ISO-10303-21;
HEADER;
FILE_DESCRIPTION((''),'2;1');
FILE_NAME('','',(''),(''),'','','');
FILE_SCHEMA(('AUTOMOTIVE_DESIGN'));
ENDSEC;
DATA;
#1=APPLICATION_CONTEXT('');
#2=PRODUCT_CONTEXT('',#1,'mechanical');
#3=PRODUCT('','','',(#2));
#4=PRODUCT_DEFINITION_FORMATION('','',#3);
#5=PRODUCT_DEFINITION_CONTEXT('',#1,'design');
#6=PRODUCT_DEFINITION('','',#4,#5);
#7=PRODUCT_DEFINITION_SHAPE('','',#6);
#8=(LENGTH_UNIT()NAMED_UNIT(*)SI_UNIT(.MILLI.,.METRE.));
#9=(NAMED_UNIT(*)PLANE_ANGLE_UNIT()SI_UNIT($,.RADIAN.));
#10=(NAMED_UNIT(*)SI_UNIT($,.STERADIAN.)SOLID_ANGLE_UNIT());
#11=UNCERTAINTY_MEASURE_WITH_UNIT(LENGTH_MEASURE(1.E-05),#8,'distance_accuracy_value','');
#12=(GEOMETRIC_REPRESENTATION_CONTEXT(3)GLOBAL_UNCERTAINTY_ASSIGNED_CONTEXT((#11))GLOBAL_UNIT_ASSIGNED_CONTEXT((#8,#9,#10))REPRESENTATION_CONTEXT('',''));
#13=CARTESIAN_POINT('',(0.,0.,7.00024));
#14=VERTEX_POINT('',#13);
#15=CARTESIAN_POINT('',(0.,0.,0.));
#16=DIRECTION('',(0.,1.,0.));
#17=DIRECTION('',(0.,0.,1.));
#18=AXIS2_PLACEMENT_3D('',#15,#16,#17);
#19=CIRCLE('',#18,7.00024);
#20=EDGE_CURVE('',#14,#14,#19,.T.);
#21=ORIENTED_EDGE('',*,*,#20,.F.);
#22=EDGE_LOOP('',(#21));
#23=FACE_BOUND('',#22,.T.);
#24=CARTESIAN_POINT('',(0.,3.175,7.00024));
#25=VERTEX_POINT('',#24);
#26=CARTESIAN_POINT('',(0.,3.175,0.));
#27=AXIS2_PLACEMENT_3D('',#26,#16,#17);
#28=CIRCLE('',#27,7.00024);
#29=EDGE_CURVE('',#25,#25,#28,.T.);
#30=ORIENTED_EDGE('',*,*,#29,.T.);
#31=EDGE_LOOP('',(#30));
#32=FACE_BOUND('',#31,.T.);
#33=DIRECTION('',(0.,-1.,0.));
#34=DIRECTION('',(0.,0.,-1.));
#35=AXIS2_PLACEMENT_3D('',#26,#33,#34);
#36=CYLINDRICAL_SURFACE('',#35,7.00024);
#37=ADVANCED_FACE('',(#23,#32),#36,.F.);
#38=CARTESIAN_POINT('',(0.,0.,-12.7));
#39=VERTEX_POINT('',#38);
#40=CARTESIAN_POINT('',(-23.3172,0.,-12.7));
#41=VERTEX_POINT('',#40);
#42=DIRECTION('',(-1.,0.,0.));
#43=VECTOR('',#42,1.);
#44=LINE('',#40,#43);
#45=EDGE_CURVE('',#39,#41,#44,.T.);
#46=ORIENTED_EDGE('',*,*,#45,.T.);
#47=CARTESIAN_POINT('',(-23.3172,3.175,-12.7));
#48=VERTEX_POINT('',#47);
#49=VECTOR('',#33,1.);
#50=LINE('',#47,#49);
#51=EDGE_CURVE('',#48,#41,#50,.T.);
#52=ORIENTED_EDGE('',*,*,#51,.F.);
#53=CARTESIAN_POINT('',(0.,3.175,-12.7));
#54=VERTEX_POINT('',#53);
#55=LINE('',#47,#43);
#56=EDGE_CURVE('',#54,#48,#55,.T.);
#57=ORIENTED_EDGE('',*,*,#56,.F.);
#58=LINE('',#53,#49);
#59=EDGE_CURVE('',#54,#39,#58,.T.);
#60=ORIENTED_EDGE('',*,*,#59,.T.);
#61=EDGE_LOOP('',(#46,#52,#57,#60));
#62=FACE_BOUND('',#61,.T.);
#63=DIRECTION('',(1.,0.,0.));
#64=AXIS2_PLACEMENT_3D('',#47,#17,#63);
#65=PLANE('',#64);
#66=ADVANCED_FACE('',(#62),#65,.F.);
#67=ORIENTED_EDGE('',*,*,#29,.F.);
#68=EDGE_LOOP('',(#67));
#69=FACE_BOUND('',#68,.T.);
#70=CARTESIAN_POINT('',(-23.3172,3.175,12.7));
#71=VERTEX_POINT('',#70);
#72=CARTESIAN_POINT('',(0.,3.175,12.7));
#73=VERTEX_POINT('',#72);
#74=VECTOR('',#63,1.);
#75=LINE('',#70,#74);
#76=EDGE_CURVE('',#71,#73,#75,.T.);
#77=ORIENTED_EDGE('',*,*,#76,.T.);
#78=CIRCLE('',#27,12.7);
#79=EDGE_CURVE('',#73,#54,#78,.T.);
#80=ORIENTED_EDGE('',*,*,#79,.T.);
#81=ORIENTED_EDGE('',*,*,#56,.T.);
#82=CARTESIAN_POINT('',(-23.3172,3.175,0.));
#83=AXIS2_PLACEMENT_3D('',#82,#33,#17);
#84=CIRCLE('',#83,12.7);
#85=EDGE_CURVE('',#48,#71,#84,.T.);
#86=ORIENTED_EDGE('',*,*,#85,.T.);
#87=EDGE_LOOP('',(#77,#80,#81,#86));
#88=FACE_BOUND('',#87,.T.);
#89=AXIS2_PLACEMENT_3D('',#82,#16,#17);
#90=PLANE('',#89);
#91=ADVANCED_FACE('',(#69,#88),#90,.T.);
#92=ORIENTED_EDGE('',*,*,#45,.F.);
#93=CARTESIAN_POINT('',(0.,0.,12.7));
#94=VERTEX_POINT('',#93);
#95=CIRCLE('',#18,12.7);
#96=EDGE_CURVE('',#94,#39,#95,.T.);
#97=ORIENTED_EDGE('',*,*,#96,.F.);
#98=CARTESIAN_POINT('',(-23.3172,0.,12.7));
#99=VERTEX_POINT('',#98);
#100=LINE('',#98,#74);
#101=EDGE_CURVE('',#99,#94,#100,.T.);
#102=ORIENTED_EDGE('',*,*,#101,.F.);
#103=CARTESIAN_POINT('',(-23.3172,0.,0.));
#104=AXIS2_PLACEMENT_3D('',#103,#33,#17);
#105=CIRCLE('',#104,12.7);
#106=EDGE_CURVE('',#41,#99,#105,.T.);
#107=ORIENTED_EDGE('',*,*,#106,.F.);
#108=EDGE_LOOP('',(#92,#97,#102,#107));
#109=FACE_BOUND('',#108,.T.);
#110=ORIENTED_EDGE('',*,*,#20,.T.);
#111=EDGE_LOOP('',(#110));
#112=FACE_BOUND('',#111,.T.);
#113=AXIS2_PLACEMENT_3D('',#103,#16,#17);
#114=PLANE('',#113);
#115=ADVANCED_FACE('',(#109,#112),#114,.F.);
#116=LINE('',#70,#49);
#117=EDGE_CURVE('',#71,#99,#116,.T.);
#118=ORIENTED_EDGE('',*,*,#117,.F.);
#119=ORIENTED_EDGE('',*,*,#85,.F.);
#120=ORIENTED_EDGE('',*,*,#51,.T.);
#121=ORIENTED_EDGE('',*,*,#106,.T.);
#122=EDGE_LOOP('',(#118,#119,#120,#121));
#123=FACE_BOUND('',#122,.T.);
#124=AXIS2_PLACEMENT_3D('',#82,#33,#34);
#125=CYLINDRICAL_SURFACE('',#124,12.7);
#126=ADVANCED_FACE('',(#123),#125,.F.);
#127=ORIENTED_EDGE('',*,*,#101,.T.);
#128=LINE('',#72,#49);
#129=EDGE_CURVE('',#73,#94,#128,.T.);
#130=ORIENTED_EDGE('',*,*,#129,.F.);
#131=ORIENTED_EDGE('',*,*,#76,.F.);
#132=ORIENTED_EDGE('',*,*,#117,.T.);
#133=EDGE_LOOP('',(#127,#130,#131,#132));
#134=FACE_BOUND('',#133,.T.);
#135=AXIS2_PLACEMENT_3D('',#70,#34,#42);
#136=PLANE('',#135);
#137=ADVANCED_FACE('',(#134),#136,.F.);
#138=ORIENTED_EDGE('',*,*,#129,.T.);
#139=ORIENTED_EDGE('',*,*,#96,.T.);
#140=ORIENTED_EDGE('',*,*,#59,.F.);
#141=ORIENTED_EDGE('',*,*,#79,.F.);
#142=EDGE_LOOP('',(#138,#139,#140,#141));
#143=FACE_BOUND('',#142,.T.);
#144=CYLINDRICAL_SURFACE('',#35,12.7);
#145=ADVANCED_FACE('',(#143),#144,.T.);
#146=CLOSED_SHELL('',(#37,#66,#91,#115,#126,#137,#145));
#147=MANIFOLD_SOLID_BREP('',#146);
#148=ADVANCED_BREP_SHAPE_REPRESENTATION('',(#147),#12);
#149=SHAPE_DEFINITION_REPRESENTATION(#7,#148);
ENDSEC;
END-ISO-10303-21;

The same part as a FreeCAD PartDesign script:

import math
import FreeCAD as App
import Part
import Sketcher

V = App.Vector
Q = App.Units.Quantity

doc = App.newDocument("Part")
params = doc.addObject("Spreadsheet::Sheet", "Params")
for row, (alias, value) in enumerate([
    ("sketch1_radius", "0.5 in"),
    ("sketch1_width", "0.918 in"),
    ("pad1_length", "0.125 in"),
], start=1):
    params.set(f"A{row}", alias)
    params.set(f"B{row}", "=" + value)
    params.setAlias(f"B{row}", alias)

body = doc.addObject("PartDesign::Body", "Body")

# Sketch on XZ plane
sketch1 = body.newObject("Sketcher::SketchObject", "Sketch")
sketch1.AttachmentSupport = (doc.getObject("XZ_Plane"), [""])
sketch1.MapMode = "FlatFace"
sketch1.addGeometry([
    Part.LineSegment(V(0, -13, 0), V(-23, -13, 0)),  # 0
    Part.ArcOfCircle(Part.Circle(V(-23, 0, 0), V(0, 0, 1), 13), math.radians(-90), math.radians(90)),  # 1
    Part.LineSegment(V(-23, 13, 0), V(0, 13, 0)),  # 2
    Part.ArcOfCircle(Part.Circle(V(0, 0, 0), V(0, 0, 1), 13), math.radians(-90), math.radians(90)),  # 3
    Part.Circle(V(0, 0, 0), V(0, 0, 1), 7),  # 4
], False)
sketch1.addConstraint([
    Sketcher.Constraint("Tangent", 0, 2, 1, 1),
    Sketcher.Constraint("Tangent", 1, 2, 2, 1),
    Sketcher.Constraint("Tangent", 2, 2, 3, 2),
    Sketcher.Constraint("Tangent", 3, 1, 0, 1),
    Sketcher.Constraint("Horizontal", 0),
    Sketcher.Constraint("Horizontal", 2),
    Sketcher.Constraint("Coincident", 3, 3, -1, 1),
    Sketcher.Constraint("Coincident", 4, 3, -1, 1),
    Sketcher.Constraint("Radius", 1, Q("0.5 in")),
    Sketcher.Constraint("Diameter", 4, Q("0.5512 in")),
    Sketcher.Constraint("DistanceX", 0, 2, 0, 1, Q("0.918 in")),
])
sketch1.setExpression("Constraints[8]", "Params.sketch1_radius")
sketch1.setExpression("Constraints[10]", "Params.sketch1_width")
pad1 = body.newObject("PartDesign::Pad", "Pad")
pad1.Profile = sketch1
pad1.setExpression("Length", "Params.pad1_length")
pad1.Reversed = True

doc.recompute()
